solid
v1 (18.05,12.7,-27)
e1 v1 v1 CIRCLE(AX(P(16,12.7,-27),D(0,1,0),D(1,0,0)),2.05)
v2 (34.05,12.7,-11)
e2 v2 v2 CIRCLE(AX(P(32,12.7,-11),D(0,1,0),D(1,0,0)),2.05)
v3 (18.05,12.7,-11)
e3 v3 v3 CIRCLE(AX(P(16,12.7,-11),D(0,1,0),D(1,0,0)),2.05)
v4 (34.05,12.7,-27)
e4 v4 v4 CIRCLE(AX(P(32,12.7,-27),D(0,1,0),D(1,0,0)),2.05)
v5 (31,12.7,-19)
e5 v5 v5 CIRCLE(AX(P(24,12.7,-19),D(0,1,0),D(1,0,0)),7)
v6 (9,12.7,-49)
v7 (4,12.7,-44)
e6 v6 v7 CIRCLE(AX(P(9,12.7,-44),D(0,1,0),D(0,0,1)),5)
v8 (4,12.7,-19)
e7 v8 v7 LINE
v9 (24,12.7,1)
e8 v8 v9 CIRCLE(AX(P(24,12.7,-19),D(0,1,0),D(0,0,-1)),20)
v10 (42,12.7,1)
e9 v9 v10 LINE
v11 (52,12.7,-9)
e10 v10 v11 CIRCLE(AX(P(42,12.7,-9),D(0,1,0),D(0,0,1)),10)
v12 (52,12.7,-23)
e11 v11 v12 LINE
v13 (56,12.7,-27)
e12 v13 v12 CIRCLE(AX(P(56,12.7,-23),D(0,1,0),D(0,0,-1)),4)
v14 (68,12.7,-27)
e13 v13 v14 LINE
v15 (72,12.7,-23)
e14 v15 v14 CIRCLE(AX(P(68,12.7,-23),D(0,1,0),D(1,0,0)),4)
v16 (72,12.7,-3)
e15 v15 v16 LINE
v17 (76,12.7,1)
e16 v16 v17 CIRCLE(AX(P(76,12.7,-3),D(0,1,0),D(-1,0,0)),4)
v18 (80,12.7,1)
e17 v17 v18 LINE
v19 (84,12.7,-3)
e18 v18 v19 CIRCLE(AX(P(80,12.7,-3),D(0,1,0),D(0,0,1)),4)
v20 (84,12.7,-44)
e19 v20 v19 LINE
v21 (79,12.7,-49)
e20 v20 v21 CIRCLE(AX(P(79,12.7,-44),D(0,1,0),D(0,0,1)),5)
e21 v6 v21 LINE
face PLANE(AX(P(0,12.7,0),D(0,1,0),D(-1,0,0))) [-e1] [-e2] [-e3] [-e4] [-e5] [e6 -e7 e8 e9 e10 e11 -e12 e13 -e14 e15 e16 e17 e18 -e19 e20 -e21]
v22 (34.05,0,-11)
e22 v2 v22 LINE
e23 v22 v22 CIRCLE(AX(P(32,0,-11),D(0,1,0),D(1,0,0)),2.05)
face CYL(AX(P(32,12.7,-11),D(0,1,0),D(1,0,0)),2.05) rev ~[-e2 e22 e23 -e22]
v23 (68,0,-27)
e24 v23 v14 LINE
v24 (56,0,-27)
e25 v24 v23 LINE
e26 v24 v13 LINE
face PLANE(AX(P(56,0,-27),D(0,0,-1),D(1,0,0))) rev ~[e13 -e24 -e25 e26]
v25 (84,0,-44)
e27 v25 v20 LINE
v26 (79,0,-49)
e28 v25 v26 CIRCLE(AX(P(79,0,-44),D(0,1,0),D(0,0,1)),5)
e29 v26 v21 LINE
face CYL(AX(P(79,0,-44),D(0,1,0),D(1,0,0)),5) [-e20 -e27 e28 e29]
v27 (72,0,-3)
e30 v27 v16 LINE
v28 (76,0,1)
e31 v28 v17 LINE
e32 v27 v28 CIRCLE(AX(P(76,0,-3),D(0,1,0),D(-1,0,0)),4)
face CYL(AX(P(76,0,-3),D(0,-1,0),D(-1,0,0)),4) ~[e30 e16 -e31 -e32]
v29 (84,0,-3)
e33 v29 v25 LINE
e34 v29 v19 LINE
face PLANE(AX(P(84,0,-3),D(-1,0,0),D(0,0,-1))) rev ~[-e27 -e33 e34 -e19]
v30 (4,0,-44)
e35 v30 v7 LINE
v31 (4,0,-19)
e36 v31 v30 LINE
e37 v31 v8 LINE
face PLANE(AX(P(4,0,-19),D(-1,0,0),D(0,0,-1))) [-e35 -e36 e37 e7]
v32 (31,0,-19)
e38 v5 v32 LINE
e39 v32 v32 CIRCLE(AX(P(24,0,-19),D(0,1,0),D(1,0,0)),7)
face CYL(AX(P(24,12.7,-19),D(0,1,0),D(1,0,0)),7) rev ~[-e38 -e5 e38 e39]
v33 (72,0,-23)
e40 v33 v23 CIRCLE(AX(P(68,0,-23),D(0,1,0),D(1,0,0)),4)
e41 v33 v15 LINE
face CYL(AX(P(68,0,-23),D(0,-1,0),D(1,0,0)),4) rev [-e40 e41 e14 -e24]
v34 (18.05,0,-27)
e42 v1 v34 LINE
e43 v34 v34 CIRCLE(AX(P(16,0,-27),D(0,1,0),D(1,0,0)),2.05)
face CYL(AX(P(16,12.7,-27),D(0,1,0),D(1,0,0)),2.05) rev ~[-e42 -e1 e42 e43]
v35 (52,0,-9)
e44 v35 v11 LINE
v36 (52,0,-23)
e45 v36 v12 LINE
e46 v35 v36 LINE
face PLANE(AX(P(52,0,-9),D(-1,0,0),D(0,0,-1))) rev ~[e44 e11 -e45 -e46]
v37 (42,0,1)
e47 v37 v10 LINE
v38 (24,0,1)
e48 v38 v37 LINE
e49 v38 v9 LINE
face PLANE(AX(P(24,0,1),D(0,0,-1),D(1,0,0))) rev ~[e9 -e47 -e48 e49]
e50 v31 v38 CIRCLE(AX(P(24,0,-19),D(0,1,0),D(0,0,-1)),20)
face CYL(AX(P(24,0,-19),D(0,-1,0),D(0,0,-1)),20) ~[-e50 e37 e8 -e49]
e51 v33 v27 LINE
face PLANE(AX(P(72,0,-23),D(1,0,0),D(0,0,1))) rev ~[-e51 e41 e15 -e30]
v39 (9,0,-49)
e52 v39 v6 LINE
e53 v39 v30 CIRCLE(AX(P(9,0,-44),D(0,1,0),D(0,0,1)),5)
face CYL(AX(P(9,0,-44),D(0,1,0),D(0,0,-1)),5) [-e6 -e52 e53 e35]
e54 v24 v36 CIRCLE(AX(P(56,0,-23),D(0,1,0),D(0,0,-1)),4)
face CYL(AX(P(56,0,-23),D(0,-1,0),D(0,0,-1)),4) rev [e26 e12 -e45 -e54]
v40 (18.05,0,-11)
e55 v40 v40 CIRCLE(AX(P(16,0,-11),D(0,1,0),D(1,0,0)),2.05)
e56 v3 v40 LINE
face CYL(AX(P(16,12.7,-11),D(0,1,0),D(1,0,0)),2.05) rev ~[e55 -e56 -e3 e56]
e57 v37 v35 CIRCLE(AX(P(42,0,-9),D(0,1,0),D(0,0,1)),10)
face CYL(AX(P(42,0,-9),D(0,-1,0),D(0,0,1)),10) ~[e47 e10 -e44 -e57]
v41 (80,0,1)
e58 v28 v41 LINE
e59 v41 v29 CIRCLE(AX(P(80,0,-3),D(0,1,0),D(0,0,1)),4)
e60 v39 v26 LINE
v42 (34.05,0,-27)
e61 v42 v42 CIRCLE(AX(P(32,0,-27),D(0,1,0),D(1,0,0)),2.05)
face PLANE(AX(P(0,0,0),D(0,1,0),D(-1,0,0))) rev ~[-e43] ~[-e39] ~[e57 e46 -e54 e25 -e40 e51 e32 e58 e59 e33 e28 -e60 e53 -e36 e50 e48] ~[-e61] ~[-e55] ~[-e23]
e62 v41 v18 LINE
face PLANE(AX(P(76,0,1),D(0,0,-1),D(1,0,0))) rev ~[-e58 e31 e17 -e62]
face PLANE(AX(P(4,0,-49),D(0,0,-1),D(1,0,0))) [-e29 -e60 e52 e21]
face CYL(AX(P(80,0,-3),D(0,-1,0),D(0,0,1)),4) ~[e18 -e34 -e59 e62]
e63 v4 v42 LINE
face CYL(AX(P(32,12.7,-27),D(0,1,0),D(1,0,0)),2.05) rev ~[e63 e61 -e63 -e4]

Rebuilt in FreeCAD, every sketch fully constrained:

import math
import FreeCAD as App
import Part
import Sketcher

V = App.Vector


def edges_at(feature, points):
    """Names of the edges that pass closest to the given points."""
    edges = feature.Shape.Edges
    near = lambda p: min(range(len(edges)), key=lambda i: edges[i].distToShape(Part.Vertex(*p))[0])
    return sorted({f"Edge{near(p) + 1}" for p in points})

doc = App.newDocument("Part")
body = doc.addObject("PartDesign::Body", "Body")

# Sketch on XZ plane
sketch1 = body.newObject("Sketcher::SketchObject", "Sketch")
sketch1.AttachmentSupport = (doc.getObject("XZ_Plane"), [""])
sketch1.MapMode = "FlatFace"
sketch1.addGeometry([
    Part.ArcOfCircle(Part.Circle(V(80, -3, 0), V(0, 0, 1), 4), math.radians(0), math.radians(90)),  # 0
    Part.LineSegment(V(84, -3, 0), V(84, -49, 0)),  # 1
    Part.LineSegment(V(84, -49, 0), V(4, -49, 0)),  # 2
    Part.LineSegment(V(4, -49, 0), V(4, -19, 0)),  # 3
    Part.ArcOfCircle(Part.Circle(V(24, -19, 0), V(0, 0, 1), 20), math.radians(90), math.radians(180)),  # 4
    Part.LineSegment(V(24, 1, 0), V(42, 1, 0)),  # 5
    Part.ArcOfCircle(Part.Circle(V(42, -9, 0), V(0, 0, 1), 10), math.radians(0), math.radians(90)),  # 6
    Part.LineSegment(V(52, -9, 0), V(52, -23, 0)),  # 7
    Part.ArcOfCircle(Part.Circle(V(56, -23, 0), V(0, 0, 1), 4), math.radians(180), math.radians(270)),  # 8
    Part.LineSegment(V(56, -27, 0), V(68, -27, 0)),  # 9
    Part.ArcOfCircle(Part.Circle(V(68, -23, 0), V(0, 0, 1), 4), math.radians(-90), math.radians(0)),  # 10
    Part.LineSegment(V(72, -23, 0), V(72, -3, 0)),  # 11
    Part.ArcOfCircle(Part.Circle(V(76, -3, 0), V(0, 0, 1), 4), math.radians(90), math.radians(180)),  # 12
    Part.LineSegment(V(76, 1, 0), V(80, 1, 0)),  # 13
], False)
sketch1.addConstraint([
    Sketcher.Constraint("Tangent", 0, 1, 1, 1),
    Sketcher.Constraint("Coincident", 1, 2, 2, 1),
    Sketcher.Constraint("Coincident", 2, 2, 3, 1),
    Sketcher.Constraint("Tangent", 3, 2, 4, 2),
    Sketcher.Constraint("Tangent", 4, 1, 5, 1),
    Sketcher.Constraint("Tangent", 5, 2, 6, 2),
    Sketcher.Constraint("Tangent", 6, 1, 7, 1),
    Sketcher.Constraint("Tangent", 7, 2, 8, 1),
    Sketcher.Constraint("Tangent", 8, 2, 9, 1),
    Sketcher.Constraint("Tangent", 9, 2, 10, 1),
    Sketcher.Constraint("Tangent", 10, 2, 11, 1),
    Sketcher.Constraint("Tangent", 11, 2, 12, 2),
    Sketcher.Constraint("Tangent", 12, 1, 13, 1),
    Sketcher.Constraint("Tangent", 13, 2, 0, 2),
    Sketcher.Constraint("Vertical", 1),
    Sketcher.Constraint("Horizontal", 2),
    Sketcher.Constraint("Vertical", 3),
    Sketcher.Constraint("Horizontal", 5),
    Sketcher.Constraint("Vertical", 7),
    Sketcher.Constraint("Horizontal", 9),
    Sketcher.Constraint("Vertical", 11),
    Sketcher.Constraint("Horizontal", 13),
    Sketcher.Constraint("Equal", 0, 8),
    Sketcher.Constraint("Equal", 8, 10),
    Sketcher.Constraint("Equal", 10, 12),
    Sketcher.Constraint("Horizontal", 5, 2, 12, 1),
    Sketcher.Constraint("Radius", 0, 4.0),
    Sketcher.Constraint("Radius", 4, 20.0),
    Sketcher.Constraint("Radius", 6, 10.0),
    Sketcher.Constraint("DistanceX", 9, 1, 9, 2, 12.0),
    Sketcher.Constraint("DistanceX", 13, 1, 13, 2, 4.0),
    Sketcher.Constraint("DistanceY", 3, 1, 3, 2, 30.0),
    Sketcher.Constraint("DistanceY", 11, 1, 11, 2, 20.0),
    Sketcher.Constraint("DistanceX", -1, 1, 2, 2, 4.0),
    Sketcher.Constraint("DistanceX", 2, 2, 2, 1, 80.0),
    Sketcher.Constraint("DistanceY", 0, 3, -1, 1, 3.0),
])
pad1 = body.newObject("PartDesign::Pad", "Pad")
pad1.Profile = sketch1
pad1.Length = 12.7
pad1.Reversed = True

# Sketch on XZ plane
sketch2 = body.newObject("Sketcher::SketchObject", "Sketch001")
sketch2.AttachmentSupport = (doc.getObject("XZ_Plane"), [""])
sketch2.MapMode = "FlatFace"
sketch2.AttachmentOffset = App.Placement(V(0, 0, -12.7), App.Rotation())
sketch2.addGeometry([
    Part.Circle(V(24, -19, 0), V(0, 0, 1), 7),  # 0
    Part.Circle(V(32, -27, 0), V(0, 0, 1), 2),  # 1
    Part.Circle(V(16, -27, 0), V(0, 0, 1), 2),  # 2
    Part.Circle(V(16, -11, 0), V(0, 0, 1), 2),  # 3
    Part.Circle(V(32, -11, 0), V(0, 0, 1), 2),  # 4
], False)
sketch2.addConstraint([
    Sketcher.Constraint("Equal", 1, 2),
    Sketcher.Constraint("Equal", 2, 3),
    Sketcher.Constraint("Equal", 3, 4),
    Sketcher.Constraint("Horizontal", 1, 3, 2, 3),
    Sketcher.Constraint("Horizontal", 3, 3, 4, 3),
    Sketcher.Constraint("Vertical", 2, 3, 3, 3),
    Sketcher.Constraint("Vertical", 1, 3, 4, 3),
    Sketcher.Constraint("Diameter", 0, 14.0),
    Sketcher.Constraint("Diameter", 1, 4.1),
    Sketcher.Constraint("DistanceX", -1, 1, 2, 3, 16.0),
    Sketcher.Constraint("DistanceX", 0, 3, 1, 3, 8.0),
    Sketcher.Constraint("DistanceY", 1, 3, 0, 3, 8.0),
    Sketcher.Constraint("DistanceX", 2, 3, 0, 3, 8.0),
    Sketcher.Constraint("DistanceY", 0, 3, 3, 3, 8.0),
    Sketcher.Constraint("DistanceY", 0, 3, -1, 1, 19.0),
])
pocket1 = body.newObject("PartDesign::Pocket", "Pocket")
pocket1.Profile = sketch2
pocket1.Type = "ThroughAll"
pocket1.Reversed = True
doc.recompute()

fillet = body.newObject("PartDesign::Fillet", "Fillet")
fillet.Base = (pocket1, edges_at(pocket1, [(84, 6.35, -49), (4, 6.35, -49)]))
fillet.Radius = 5

doc.recompute()
